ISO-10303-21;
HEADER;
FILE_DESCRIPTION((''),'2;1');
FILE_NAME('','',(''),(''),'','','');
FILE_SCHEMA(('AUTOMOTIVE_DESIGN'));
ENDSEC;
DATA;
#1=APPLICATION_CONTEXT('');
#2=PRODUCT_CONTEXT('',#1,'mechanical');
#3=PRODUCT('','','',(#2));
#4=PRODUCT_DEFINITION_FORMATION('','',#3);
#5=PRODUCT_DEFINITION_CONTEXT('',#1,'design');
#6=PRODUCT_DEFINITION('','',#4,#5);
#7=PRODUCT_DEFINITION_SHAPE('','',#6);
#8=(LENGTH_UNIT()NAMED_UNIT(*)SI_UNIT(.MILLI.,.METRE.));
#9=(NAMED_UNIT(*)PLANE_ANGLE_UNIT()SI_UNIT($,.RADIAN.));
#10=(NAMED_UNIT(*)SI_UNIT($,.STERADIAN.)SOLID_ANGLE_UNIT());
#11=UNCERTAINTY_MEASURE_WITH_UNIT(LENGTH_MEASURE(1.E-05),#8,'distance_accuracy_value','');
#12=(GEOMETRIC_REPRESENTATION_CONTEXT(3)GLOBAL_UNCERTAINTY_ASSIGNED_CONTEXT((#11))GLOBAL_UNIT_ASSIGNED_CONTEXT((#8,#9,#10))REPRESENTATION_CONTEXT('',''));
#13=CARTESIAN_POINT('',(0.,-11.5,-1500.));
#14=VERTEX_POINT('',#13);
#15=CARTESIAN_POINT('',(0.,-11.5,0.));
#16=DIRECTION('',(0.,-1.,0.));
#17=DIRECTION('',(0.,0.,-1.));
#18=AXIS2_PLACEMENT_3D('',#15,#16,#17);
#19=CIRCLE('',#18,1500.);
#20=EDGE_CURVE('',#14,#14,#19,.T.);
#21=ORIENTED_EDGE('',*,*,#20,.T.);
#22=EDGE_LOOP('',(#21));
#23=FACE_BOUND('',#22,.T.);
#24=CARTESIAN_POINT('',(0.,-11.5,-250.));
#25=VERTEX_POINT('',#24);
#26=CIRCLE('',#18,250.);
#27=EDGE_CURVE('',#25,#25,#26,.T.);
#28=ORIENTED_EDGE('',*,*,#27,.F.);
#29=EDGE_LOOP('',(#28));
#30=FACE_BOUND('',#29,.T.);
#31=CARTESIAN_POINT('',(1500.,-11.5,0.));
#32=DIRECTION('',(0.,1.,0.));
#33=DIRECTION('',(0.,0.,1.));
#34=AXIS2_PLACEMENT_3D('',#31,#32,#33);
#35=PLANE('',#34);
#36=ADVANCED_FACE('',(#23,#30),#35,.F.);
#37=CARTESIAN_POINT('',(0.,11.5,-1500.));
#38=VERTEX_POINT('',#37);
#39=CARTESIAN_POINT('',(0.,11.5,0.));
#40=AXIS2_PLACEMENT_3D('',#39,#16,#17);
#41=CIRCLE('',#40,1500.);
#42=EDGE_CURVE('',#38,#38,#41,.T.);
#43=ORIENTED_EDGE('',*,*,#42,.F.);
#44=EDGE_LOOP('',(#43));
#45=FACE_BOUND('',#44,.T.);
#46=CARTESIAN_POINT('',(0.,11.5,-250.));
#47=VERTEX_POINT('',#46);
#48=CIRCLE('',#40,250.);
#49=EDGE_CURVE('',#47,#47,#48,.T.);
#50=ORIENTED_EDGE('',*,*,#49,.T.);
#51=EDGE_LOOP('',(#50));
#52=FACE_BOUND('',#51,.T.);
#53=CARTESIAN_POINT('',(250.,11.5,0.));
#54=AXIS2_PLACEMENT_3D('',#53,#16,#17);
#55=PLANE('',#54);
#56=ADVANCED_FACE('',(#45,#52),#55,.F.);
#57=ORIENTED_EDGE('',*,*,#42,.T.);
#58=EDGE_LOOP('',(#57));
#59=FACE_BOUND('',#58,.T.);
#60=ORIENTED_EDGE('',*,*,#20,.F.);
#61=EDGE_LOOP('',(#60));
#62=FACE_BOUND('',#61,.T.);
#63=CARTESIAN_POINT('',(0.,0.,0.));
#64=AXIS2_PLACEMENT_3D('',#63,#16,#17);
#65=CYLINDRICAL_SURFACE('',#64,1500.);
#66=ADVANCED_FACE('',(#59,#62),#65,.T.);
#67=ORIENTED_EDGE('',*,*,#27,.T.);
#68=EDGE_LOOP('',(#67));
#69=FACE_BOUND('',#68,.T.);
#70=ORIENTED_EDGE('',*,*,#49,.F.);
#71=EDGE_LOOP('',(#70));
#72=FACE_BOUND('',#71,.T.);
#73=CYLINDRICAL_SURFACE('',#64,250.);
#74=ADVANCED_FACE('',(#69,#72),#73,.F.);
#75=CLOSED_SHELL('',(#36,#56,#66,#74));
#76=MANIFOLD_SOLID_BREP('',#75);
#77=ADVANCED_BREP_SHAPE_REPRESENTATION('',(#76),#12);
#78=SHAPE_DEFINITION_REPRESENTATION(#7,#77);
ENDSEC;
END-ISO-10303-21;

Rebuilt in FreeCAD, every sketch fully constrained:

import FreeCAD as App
import Part
import Sketcher
from FreeCAD import Vector

doc = App.newDocument("Part")
body = doc.addObject("PartDesign::Body", "Body")

# Sketch on XY plane
sketch1 = body.newObject("Sketcher::SketchObject", "Sketch")
sketch1.AttachmentSupport = (doc.getObject("XY_Plane"), [""])
sketch1.MapMode = "FlatFace"
sketch1.addGeometry([
    Part.LineSegment(Vector(250, 12, 0), Vector(250, -12, 0)),
    Part.LineSegment(Vector(250, -12, 0), Vector(1500, -12, 0)),
    Part.LineSegment(Vector(1500, -12, 0), Vector(1500, 12, 0)),
    Part.LineSegment(Vector(1500, 12, 0), Vector(250, 12, 0)),
], False)
sketch1.addConstraint([
    Sketcher.Constraint("Coincident", 0, 2, 1, 1),
    Sketcher.Constraint("Coincident", 1, 2, 2, 1),
    Sketcher.Constraint("Coincident", 2, 2, 3, 1),
    Sketcher.Constraint("Coincident", 3, 2, 0, 1),
    Sketcher.Constraint("Vertical", 0),
    Sketcher.Constraint("Horizontal", 1),
    Sketcher.Constraint("Vertical", 2),
    Sketcher.Constraint("Horizontal", 3),
    Sketcher.Constraint("DistanceX", 1, 1, 1, 2, 1250.0),
    Sketcher.Constraint("DistanceY", 0, 2, 0, 1, 23.0),
    Sketcher.Constraint("DistanceX", -1, 1, 0, 2, 250.0),
    Sketcher.Constraint("DistanceY", 0, 2, -1, 1, 11.5),
])
revolution = body.newObject("PartDesign::Revolution", "Revolution")
revolution.Profile = sketch1
revolution.ReferenceAxis = (sketch1, ["V_Axis"])
revolution.Angle = 360

doc.recompute()
